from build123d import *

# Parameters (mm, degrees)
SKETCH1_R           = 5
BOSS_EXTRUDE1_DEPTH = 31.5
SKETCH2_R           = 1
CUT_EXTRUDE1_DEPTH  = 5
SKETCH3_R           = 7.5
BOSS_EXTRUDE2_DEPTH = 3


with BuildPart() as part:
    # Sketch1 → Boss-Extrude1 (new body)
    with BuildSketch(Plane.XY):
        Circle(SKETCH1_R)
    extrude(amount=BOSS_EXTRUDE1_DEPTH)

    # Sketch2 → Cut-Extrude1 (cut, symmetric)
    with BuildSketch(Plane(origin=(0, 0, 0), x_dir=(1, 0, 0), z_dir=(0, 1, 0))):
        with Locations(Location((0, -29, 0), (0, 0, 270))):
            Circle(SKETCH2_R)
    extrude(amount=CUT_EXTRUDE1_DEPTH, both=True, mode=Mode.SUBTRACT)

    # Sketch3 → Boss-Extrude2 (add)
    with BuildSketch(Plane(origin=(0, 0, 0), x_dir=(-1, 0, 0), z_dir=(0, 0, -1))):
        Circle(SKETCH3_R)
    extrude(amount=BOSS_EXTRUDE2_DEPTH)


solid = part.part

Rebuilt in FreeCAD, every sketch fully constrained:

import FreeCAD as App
import Part
import Sketcher
from FreeCAD import Vector

doc = App.newDocument("Part")
body = doc.addObject("PartDesign::Body", "Body")

# Sketch on XY plane
sketch1 = body.newObject("Sketcher::SketchObject", "Sketch")
sketch1.AttachmentSupport = (doc.getObject("XY_Plane"), [""])
sketch1.MapMode = "FlatFace"
sketch1.addGeometry(Part.Circle(Vector(0, 0, 0), Vector(0, 0, 1), 5), False)
sketch1.addConstraint([
    Sketcher.Constraint("Coincident", 0, 3, -1, 1),
    Sketcher.Constraint("Diameter", 0, 10.0),
])
pad1 = body.newObject("PartDesign::Pad", "Pad")
pad1.Profile = sketch1
pad1.Length = 31.5

# Sketch on XZ plane
sketch2 = body.newObject("Sketcher::SketchObject", "Sketch001")
sketch2.AttachmentSupport = (doc.getObject("XZ_Plane"), [""])
sketch2.MapMode = "FlatFace"
sketch2.addGeometry(Part.Circle(Vector(0, 29, 0), Vector(0, 0, 1), 1), False)
sketch2.addConstraint([
    Sketcher.Constraint("PointOnObject", 0, 3, -2),
    Sketcher.Constraint("Diameter", 0, 2.0),
    Sketcher.Constraint("DistanceY", -1, 1, 0, 3, 29.0),
])
pocket1 = body.newObject("PartDesign::Pocket", "Pocket")
pocket1.Profile = sketch2
pocket1.Length = 10
pocket1.Midplane = True

# Sketch on XY plane
sketch3 = body.newObject("Sketcher::SketchObject", "Sketch002")
sketch3.AttachmentSupport = (doc.getObject("XY_Plane"), [""])
sketch3.MapMode = "FlatFace"
sketch3.addGeometry(Part.Circle(Vector(0, 0, 0), Vector(0, 0, 1), 8), False)
sketch3.addConstraint([
    Sketcher.Constraint("Coincident", 0, 3, -1, 1),
    Sketcher.Constraint("Diameter", 0, 15.0),
])
pad2 = body.newObject("PartDesign::Pad", "Pad001")
pad2.Profile = sketch3
pad2.Length = 3
pad2.Reversed = True

doc.recompute()
